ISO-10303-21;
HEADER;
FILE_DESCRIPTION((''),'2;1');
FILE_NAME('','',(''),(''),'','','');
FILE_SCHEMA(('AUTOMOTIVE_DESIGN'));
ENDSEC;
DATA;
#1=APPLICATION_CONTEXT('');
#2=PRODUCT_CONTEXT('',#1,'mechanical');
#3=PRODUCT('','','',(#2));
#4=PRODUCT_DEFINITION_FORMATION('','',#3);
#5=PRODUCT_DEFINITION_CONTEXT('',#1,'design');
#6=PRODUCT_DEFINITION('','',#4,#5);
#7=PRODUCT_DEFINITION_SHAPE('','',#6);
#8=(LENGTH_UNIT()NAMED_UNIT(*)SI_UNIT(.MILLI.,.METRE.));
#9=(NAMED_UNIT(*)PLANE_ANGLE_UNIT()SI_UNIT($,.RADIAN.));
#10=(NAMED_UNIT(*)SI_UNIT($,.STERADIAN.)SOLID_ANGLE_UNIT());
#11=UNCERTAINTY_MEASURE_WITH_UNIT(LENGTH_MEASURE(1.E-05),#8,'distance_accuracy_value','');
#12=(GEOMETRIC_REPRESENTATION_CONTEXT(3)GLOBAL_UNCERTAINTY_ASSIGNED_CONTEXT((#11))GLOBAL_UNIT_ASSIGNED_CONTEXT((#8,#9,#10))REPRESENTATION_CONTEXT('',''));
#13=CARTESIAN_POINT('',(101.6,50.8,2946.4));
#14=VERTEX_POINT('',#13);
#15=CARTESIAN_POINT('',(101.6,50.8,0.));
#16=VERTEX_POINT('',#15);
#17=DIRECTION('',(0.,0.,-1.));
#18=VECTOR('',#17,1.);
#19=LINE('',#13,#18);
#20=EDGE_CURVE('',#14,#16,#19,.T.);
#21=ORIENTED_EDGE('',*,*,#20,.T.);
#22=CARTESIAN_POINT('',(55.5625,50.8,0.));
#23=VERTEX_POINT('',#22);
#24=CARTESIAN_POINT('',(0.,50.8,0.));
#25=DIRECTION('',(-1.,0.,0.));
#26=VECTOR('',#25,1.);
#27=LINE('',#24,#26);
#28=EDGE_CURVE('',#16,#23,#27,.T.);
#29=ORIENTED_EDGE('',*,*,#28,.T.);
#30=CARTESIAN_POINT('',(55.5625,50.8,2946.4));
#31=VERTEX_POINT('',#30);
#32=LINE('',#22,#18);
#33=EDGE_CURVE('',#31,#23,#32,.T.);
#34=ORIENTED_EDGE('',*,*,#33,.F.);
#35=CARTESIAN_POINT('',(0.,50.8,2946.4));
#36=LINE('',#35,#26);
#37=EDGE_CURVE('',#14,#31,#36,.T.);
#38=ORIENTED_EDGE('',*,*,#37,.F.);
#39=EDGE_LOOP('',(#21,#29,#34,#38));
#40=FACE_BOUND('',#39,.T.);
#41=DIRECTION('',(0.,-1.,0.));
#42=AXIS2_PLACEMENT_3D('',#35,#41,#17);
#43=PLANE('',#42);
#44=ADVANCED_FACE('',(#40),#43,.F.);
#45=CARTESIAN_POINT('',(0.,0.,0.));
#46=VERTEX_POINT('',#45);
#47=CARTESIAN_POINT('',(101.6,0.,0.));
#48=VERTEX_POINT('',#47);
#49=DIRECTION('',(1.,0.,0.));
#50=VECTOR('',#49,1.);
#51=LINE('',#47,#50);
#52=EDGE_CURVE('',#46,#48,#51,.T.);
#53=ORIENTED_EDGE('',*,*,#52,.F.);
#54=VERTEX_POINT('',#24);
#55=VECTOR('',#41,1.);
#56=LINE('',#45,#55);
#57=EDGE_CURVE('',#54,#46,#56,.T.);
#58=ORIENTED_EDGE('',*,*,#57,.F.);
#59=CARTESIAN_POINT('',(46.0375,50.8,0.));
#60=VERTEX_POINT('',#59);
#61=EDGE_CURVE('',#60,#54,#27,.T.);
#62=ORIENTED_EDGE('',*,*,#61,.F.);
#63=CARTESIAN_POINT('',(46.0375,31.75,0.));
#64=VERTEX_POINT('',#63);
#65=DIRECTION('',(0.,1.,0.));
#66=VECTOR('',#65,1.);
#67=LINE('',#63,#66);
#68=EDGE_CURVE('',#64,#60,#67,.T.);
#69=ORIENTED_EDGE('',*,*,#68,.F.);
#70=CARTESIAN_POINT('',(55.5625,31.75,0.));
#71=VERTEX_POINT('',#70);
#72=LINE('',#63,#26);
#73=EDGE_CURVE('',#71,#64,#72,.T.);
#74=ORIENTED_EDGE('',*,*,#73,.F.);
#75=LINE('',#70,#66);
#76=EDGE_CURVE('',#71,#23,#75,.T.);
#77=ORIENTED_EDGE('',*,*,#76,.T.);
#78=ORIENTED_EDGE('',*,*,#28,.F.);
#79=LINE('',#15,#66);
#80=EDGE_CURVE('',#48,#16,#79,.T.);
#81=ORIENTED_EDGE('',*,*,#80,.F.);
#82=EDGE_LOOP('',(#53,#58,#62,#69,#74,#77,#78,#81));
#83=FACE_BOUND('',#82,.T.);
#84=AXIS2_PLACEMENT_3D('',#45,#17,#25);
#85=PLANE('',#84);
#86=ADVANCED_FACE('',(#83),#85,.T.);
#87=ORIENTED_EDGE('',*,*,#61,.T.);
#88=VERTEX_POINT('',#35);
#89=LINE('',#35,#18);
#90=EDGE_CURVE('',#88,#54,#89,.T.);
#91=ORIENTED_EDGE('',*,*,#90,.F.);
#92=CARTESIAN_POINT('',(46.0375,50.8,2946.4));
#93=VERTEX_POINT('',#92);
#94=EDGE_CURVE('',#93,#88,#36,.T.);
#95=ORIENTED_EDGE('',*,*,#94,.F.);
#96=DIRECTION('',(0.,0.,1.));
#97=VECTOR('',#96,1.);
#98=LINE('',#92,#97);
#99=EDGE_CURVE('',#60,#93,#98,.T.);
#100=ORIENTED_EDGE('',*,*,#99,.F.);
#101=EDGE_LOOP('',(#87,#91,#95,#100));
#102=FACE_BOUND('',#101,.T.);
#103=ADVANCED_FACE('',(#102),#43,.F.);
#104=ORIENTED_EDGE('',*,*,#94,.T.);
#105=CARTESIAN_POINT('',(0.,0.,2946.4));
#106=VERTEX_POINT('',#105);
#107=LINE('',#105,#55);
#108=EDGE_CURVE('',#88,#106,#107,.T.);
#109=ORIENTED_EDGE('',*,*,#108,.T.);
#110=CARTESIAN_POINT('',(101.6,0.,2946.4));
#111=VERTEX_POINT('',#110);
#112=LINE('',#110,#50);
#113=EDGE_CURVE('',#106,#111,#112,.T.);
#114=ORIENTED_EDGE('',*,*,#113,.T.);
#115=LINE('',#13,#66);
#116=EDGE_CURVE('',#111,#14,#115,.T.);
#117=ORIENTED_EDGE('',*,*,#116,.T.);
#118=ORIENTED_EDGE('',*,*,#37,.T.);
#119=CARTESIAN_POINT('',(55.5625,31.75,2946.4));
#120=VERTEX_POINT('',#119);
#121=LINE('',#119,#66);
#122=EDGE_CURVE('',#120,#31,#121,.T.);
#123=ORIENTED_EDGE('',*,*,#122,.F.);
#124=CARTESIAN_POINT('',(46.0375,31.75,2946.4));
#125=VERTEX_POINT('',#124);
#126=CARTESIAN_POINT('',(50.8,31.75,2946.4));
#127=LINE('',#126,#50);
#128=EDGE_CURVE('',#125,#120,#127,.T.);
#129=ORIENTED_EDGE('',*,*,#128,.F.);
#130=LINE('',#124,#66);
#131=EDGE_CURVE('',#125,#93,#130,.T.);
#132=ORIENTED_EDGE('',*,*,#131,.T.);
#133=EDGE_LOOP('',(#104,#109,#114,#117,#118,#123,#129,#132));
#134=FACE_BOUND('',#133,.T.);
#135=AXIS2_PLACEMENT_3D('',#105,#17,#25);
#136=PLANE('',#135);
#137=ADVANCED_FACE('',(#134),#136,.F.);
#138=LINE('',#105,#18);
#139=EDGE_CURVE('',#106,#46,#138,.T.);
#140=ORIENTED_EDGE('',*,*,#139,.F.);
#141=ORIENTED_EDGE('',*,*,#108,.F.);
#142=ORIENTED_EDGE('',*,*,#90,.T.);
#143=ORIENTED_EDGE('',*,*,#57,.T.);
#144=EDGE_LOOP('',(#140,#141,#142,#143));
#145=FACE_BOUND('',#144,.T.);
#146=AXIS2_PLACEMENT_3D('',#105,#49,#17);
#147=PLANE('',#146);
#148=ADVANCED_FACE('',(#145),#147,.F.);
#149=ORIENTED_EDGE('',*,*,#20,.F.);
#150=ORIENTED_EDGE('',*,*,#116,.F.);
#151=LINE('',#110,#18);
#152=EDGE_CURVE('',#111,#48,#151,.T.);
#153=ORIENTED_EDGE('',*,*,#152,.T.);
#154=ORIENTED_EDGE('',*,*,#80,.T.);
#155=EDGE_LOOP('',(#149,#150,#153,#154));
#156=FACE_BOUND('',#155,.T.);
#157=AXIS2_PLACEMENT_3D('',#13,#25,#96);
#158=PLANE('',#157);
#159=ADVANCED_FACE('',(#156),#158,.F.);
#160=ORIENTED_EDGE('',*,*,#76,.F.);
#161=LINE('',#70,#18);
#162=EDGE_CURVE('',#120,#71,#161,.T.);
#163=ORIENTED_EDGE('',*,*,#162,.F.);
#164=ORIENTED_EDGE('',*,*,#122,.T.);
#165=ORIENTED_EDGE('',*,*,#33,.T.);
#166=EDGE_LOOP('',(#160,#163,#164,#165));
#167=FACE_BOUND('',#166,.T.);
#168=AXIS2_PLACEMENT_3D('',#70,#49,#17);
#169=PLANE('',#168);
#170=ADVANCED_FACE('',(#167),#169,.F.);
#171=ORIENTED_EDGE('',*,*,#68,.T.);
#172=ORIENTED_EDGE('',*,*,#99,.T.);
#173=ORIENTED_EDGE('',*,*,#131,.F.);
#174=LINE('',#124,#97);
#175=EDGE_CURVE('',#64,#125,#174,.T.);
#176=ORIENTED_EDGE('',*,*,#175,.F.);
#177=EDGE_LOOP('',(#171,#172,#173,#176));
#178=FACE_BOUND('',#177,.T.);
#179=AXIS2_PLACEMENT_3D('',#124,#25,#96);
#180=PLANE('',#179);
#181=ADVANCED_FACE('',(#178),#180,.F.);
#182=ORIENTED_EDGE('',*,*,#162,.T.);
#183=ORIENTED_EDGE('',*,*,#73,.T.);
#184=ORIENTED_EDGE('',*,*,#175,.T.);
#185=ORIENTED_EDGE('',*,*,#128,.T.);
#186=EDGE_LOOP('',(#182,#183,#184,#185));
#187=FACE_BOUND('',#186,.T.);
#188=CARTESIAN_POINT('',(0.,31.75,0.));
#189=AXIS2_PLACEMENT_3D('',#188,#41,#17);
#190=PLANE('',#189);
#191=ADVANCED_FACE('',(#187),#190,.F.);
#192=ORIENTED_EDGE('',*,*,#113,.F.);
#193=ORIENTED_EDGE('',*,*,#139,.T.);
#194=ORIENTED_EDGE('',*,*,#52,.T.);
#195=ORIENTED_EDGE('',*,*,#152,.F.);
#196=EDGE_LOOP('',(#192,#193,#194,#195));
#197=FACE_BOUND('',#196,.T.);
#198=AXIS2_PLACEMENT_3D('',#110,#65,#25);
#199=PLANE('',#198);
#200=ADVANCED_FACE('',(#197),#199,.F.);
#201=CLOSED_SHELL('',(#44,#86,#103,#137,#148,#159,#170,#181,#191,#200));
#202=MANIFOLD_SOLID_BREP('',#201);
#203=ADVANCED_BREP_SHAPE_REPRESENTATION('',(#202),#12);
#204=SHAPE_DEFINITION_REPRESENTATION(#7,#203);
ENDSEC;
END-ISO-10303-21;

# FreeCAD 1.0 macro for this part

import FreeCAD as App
import Part
import Sketcher

V = App.Vector
Q = App.Units.Quantity

doc = App.newDocument("Part")
body = doc.addObject("PartDesign::Body", "Body")

# Sketch on XY plane
sketch1 = doc.addObject("Sketcher::SketchObject", "Sketch")
body.addObject(sketch1)
sketch1.AttachmentSupport = (doc.XY_Plane, [""])
sketch1.MapMode = "FlatFace"
sketch1.addGeometry([
    Part.LineSegment(V(0, 51, 0), V(0, 0, 0)),
    Part.LineSegment(V(0, 0, 0), V(102, 0, 0)),
    Part.LineSegment(V(102, 0, 0), V(102, 51, 0)),
    Part.LineSegment(V(102, 51, 0), V(0, 51, 0)),
], False)
sketch1.addConstraint([
    Sketcher.Constraint("Coincident", 0, 2, 1, 1),
    Sketcher.Constraint("Coincident", 1, 2, 2, 1),
    Sketcher.Constraint("Coincident", 2, 2, 3, 1),
    Sketcher.Constraint("Coincident", 3, 2, 0, 1),
    Sketcher.Constraint("Vertical", 0),
    Sketcher.Constraint("Horizontal", 1),
    Sketcher.Constraint("Vertical", 2),
    Sketcher.Constraint("Horizontal", 3),
    Sketcher.Constraint("Coincident", 0, 2, -1, 1),
    Sketcher.Constraint("DistanceX", 1, 1, 1, 2, Q("4 in")),
    Sketcher.Constraint("DistanceY", 0, 2, 0, 1, Q("2 in")),
])
pad1 = doc.addObject("PartDesign::Pad", "Pad")
body.addObject(pad1)
pad1.Profile = sketch1
pad1.Length = Q("116 in")

# Sketch on XZ plane
sketch2 = doc.addObject("Sketcher::SketchObject", "Sketch001")
body.addObject(sketch2)
sketch2.AttachmentSupport = (doc.XZ_Plane, [""])
sketch2.MapMode = "FlatFace"
sketch2.AttachmentOffset = App.Placement(V(0, 0, -2 * 25.4), App.Rotation())
sketch2.addGeometry([
    Part.LineSegment(V(46, 2946, 0), V(56, 2946, 0)),
    Part.LineSegment(V(56, 2946, 0), V(56, 0, 0)),
    Part.LineSegment(V(56, 0, 0), V(46, 0, 0)),
    Part.LineSegment(V(46, 0, 0), V(46, 2946, 0)),
], False)
sketch2.addConstraint([
    Sketcher.Constraint("Coincident", 0, 2, 1, 1),
    Sketcher.Constraint("Coincident", 1, 2, 2, 1),
    Sketcher.Constraint("Coincident", 2, 2, 3, 1),
    Sketcher.Constraint("Coincident", 3, 2, 0, 1),
    Sketcher.Constraint("Horizontal", 0),
    Sketcher.Constraint("Vertical", 1),
    Sketcher.Constraint("Horizontal", 2),
    Sketcher.Constraint("Vertical", 3),
    Sketcher.Constraint("PointOnObject", 1, 2, -1),
    Sketcher.Constraint("DistanceY", 1, 2, 1, 1, Q("116 in")),
    Sketcher.Constraint("DistanceX", 0, 1, 0, 2, Q("0.375 in")),
    Sketcher.Constraint("DistanceX", -1, 1, 0, 2, Q("2.1875 in")),
])
pocket1 = doc.addObject("PartDesign::Pocket", "Pocket")
body.addObject(pocket1)
pocket1.Profile = sketch2
pocket1.Length = Q("0.75 in")
pocket1.Reversed = True

doc.recompute()
